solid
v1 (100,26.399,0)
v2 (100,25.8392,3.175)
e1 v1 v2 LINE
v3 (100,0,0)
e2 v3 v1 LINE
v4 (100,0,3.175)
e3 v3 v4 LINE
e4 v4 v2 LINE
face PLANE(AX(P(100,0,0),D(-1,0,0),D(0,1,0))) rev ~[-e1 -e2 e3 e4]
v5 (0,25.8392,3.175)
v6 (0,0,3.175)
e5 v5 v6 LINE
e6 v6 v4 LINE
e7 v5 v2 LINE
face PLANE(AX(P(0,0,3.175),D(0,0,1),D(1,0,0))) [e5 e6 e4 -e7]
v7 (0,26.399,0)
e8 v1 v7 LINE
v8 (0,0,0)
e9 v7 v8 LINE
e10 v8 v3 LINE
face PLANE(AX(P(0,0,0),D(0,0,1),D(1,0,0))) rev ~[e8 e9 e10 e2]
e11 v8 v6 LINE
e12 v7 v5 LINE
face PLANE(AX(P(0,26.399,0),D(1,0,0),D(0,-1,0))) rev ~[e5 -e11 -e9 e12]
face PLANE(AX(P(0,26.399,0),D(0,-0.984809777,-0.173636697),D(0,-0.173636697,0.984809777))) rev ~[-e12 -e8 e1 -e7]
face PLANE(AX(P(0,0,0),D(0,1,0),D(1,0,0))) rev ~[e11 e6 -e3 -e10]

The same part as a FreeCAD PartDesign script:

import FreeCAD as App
import Part
import Sketcher
from FreeCAD import Vector
Q = App.Units.Quantity

doc = App.newDocument("Part")
body = doc.addObject("PartDesign::Body", "Body")

# Sketch on XY plane
sketch1 = doc.addObject("Sketcher::SketchObject", "Sketch")
body.addObject(sketch1)
sketch1.AttachmentSupport = (doc.XY_Plane, [""])
sketch1.MapMode = "FlatFace"
sketch1.addGeometry([
    Part.LineSegment(Vector(0, 26, 0), Vector(0, 0, 0)),
    Part.LineSegment(Vector(0, 0, 0), Vector(100, 0, 0)),
    Part.LineSegment(Vector(100, 0, 0), Vector(100, 26, 0)),
    Part.LineSegment(Vector(100, 26, 0), Vector(0, 26, 0)),
], False)
sketch1.addConstraint([
    Sketcher.Constraint("Coincident", 0, 2, 1, 1),
    Sketcher.Constraint("Coincident", 1, 2, 2, 1),
    Sketcher.Constraint("Coincident", 2, 2, 3, 1),
    Sketcher.Constraint("Coincident", 3, 2, 0, 1),
    Sketcher.Constraint("Vertical", 0),
    Sketcher.Constraint("Horizontal", 1),
    Sketcher.Constraint("Vertical", 2),
    Sketcher.Constraint("Horizontal", 3),
    Sketcher.Constraint("Coincident", 0, 2, -1, 1),
    Sketcher.Constraint("DistanceX", 1, 1, 1, 2, Q("3.937 in")),
    Sketcher.Constraint("DistanceY", 0, 2, 0, 1, 26.399),
])
pad1 = doc.addObject("PartDesign::Pad", "Pad")
body.addObject(pad1)
pad1.Profile = sketch1
pad1.Length = Q("0.125 in")

# Sketch on YZ plane
sketch2 = doc.addObject("Sketcher::SketchObject", "Sketch001")
body.addObject(sketch2)
sketch2.AttachmentSupport = (doc.YZ_Plane, [""])
sketch2.MapMode = "FlatFace"
sketch2.addGeometry([
    Part.LineSegment(Vector(26.4, 3.2, 0), Vector(26.4, 0, 0)),
    Part.LineSegment(Vector(26.4, 0, 0), Vector(25.8, 3.2, 0)),
    Part.LineSegment(Vector(25.8, 3.2, 0), Vector(26.4, 3.2, 0)),
], False)
sketch2.addConstraint([
    Sketcher.Constraint("Coincident", 0, 2, 1, 1),
    Sketcher.Constraint("Coincident", 1, 2, 2, 1),
    Sketcher.Constraint("Coincident", 2, 2, 0, 1),
    Sketcher.Constraint("Vertical", 0),
    Sketcher.Constraint("Horizontal", 2),
    Sketcher.Constraint("PointOnObject", 0, 2, -1),
    Sketcher.Constraint("Angle", 1, Q("99.9993 deg")),
    Sketcher.Constraint("DistanceY", 0, 2, 0, 1, Q("0.125 in")),
    Sketcher.Constraint("DistanceX", -1, 1, 1, 2, Q("1.0173 in")),
])
pocket1 = doc.addObject("PartDesign::Pocket", "Pocket")
body.addObject(pocket1)
pocket1.Profile = sketch2
pocket1.Length = Q("3.9370079 in")
pocket1.Reversed = True

doc.recompute()
